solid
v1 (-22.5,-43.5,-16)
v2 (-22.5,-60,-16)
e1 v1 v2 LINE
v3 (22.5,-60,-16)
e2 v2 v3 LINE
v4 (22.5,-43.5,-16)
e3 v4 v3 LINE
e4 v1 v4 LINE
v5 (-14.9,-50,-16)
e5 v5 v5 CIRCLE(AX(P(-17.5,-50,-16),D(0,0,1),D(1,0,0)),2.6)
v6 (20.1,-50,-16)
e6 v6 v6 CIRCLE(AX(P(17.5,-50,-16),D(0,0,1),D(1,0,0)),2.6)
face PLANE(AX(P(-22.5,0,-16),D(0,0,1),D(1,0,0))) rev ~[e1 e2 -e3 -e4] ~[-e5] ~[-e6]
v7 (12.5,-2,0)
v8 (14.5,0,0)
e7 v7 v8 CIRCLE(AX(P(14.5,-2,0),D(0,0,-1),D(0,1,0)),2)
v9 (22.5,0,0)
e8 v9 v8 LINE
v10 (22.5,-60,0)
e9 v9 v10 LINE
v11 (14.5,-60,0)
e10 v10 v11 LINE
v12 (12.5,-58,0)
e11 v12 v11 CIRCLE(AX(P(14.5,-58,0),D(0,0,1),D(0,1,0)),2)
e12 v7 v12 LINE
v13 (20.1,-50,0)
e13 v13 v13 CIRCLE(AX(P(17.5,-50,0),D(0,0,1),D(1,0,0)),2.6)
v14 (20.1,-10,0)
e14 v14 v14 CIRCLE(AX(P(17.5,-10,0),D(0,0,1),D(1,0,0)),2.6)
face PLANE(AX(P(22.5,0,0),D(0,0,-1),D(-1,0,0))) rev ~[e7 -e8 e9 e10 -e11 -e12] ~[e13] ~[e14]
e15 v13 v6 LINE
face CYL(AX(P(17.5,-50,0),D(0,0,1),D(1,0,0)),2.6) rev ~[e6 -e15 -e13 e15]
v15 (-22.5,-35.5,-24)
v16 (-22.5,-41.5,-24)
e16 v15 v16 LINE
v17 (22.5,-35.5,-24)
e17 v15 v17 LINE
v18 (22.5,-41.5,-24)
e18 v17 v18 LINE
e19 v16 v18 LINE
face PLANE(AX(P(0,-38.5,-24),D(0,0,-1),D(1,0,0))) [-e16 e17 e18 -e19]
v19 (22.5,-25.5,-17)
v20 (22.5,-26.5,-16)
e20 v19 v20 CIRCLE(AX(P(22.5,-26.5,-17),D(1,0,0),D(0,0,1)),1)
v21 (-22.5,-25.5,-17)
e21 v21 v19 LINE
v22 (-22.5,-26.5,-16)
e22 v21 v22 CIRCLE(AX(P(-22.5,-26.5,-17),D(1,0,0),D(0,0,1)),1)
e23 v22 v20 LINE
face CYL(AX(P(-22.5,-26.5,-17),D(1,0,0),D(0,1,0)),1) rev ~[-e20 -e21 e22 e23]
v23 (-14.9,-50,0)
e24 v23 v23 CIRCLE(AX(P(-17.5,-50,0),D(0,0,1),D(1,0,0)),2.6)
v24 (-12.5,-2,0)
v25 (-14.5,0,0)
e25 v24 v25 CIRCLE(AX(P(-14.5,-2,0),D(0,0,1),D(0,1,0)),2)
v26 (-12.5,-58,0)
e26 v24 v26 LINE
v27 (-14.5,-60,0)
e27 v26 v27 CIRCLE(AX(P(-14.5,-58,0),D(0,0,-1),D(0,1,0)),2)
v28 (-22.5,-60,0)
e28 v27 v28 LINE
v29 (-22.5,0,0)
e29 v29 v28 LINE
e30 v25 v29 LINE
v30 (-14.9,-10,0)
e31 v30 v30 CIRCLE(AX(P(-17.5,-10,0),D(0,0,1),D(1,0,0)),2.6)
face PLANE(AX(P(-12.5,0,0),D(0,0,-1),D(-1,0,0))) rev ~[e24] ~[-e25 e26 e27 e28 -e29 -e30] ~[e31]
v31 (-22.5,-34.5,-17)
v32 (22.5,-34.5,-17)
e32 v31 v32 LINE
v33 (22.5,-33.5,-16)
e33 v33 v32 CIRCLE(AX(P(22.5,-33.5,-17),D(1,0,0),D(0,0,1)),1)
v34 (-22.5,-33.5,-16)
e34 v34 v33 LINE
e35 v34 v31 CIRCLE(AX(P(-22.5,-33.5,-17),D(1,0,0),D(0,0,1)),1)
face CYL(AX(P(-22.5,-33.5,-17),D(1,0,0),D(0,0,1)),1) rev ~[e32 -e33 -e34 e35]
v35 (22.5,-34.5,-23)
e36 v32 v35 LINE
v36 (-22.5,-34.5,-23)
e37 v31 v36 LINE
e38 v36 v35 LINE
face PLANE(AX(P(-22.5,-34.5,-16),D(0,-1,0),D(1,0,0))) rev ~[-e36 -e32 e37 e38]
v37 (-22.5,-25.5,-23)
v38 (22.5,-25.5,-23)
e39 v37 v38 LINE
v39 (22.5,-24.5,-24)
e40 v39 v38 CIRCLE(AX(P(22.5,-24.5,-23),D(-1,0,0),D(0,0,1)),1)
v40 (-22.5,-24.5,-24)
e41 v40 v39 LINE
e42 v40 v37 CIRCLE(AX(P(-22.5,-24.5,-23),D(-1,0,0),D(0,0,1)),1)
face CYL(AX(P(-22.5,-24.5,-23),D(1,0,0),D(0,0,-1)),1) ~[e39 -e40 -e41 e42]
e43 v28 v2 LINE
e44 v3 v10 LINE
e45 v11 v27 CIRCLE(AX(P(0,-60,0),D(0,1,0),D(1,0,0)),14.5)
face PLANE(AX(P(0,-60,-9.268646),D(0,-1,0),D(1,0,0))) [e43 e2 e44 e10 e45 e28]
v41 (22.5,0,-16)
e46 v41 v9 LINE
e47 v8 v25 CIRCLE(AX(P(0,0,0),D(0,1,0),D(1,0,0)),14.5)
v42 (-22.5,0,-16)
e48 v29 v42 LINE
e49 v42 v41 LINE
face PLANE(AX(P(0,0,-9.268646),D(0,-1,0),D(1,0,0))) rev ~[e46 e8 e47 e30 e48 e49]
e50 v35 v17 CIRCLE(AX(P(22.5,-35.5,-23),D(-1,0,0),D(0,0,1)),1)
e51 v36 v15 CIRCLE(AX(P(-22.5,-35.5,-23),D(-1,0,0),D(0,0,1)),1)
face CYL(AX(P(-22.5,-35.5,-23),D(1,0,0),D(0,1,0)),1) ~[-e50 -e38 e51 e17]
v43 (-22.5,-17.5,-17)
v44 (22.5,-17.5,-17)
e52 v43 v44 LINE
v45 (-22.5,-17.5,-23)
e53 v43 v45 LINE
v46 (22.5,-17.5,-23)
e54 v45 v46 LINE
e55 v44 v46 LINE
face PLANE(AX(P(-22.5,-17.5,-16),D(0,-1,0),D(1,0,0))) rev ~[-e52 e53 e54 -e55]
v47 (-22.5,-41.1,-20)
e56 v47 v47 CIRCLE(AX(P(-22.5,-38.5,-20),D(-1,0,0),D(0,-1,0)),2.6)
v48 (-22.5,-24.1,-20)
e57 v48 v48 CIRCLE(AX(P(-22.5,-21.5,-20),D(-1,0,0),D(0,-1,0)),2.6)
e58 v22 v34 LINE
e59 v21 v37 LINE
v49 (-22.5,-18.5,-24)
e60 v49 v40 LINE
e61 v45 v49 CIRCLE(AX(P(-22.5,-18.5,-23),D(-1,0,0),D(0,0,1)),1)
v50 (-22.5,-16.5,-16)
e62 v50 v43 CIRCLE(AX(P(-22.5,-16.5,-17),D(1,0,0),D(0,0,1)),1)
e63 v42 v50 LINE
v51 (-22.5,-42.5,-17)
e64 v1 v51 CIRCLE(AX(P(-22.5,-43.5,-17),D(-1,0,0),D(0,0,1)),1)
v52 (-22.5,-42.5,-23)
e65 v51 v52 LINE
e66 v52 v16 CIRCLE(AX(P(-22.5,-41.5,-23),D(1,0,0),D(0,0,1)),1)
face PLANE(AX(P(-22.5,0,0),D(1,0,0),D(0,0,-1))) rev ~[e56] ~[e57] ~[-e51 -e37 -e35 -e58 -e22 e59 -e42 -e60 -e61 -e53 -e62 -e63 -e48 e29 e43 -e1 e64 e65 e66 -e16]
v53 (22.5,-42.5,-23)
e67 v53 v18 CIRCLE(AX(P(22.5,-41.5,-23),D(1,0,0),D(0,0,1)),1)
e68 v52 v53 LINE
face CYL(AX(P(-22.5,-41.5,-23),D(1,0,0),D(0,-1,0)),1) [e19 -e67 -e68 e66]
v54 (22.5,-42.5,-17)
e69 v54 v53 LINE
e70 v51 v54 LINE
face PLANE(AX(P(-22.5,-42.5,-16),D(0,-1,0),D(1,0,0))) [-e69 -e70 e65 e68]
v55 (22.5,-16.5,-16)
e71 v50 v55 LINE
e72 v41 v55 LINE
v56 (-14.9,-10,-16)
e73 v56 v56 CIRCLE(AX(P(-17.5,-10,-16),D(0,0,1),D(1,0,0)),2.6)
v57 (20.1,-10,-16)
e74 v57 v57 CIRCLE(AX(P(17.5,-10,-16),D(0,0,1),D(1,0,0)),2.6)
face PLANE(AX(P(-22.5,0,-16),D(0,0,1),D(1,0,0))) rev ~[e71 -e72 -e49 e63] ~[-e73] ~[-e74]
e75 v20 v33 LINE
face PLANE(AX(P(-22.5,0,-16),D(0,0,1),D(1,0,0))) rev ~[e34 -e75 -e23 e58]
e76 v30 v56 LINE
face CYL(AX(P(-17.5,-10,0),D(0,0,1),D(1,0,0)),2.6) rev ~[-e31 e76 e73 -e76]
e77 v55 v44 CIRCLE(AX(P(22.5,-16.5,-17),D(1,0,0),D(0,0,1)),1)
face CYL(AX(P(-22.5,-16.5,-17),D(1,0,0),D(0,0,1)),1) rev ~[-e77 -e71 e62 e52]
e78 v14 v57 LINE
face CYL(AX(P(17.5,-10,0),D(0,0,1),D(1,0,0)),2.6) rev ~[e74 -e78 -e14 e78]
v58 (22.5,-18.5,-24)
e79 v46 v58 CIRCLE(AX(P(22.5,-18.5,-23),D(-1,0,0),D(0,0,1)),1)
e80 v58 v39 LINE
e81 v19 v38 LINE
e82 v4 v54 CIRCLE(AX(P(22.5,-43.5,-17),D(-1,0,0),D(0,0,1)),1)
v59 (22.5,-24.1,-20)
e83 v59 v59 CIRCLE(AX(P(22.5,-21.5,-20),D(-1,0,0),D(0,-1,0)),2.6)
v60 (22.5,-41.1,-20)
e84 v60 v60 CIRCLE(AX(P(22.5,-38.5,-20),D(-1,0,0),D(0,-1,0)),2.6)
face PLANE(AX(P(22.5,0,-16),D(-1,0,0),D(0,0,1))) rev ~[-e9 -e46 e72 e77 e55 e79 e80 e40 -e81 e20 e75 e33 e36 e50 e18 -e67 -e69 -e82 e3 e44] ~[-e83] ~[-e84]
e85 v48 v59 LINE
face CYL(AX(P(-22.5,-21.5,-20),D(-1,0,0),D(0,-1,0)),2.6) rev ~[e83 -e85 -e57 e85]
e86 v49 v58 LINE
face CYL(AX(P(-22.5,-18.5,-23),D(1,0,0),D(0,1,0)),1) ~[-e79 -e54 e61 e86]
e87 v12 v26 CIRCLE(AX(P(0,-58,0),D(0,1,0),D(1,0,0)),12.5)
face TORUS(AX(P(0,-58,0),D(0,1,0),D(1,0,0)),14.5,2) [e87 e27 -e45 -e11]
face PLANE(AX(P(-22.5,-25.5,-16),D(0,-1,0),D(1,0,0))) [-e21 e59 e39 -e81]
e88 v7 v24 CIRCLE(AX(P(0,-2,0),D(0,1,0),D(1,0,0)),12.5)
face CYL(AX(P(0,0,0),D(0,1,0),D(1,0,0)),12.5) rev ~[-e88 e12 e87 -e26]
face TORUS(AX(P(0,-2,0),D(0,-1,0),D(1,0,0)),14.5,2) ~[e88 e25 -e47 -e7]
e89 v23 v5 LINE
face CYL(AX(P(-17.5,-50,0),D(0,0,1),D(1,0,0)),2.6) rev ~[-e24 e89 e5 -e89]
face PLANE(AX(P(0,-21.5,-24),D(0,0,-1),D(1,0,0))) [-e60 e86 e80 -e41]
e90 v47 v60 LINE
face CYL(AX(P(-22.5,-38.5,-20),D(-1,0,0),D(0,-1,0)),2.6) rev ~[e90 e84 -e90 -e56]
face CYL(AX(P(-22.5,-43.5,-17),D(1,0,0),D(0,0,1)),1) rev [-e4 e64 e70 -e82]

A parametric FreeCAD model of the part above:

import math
import FreeCAD as App
import Part
import Sketcher

V = App.Vector
Q = App.Units.Quantity


def edges_at(feature, points):
    """Names of the edges that pass closest to the given points."""
    edges = feature.Shape.Edges
    near = lambda p: min(range(len(edges)), key=lambda i: edges[i].distToShape(Part.Vertex(*p))[0])
    return sorted({f"Edge{near(p) + 1}" for p in points})


def add_polygon(sketch, points):
    """Adds a closed chain of lines whose ends are joined by coincident constraints."""
    first, n = sketch.GeometryCount, len(points)
    for a, b in zip(points, points[1:] + points[:1]):
        sketch.addGeometry(Part.LineSegment(App.Vector(*a, 0), App.Vector(*b, 0)), False)
    for i in range(n):
        sketch.addConstraint(Sketcher.Constraint("Coincident", first + i, 2, first + (i + 1) % n, 1))

doc = App.newDocument("Part")
body = doc.addObject("PartDesign::Body", "Body")

# Sketch on XZ plane
sketch1 = body.newObject("Sketcher::SketchObject", "Sketch")
sketch1.AttachmentSupport = (doc.getObject("XZ_Plane"), [""])
sketch1.MapMode = "FlatFace"
sketch1.addGeometry([
    Part.ArcOfCircle(Part.Circle(V(0, 0, 0), V(0, 0, 1), 12), math.radians(180), math.radians(360)),  # 0
    Part.LineSegment(V(-12, 0, 0), V(-22, 0, 0)),  # 1
    Part.LineSegment(V(-22, 0, 0), V(-22, -16, 0)),  # 2
    Part.LineSegment(V(-22, -16, 0), V(22, -16, 0)),  # 3
    Part.LineSegment(V(22, -16, 0), V(22, 0, 0)),  # 4
    Part.LineSegment(V(22, 0, 0), V(12, 0, 0)),  # 5
], False)
sketch1.addConstraint([
    Sketcher.Constraint("Coincident", 0, 1, 1, 1),
    Sketcher.Constraint("Coincident", 1, 2, 2, 1),
    Sketcher.Constraint("Coincident", 2, 2, 3, 1),
    Sketcher.Constraint("Coincident", 3, 2, 4, 1),
    Sketcher.Constraint("Coincident", 4, 2, 5, 1),
    Sketcher.Constraint("Coincident", 5, 2, 0, 2),
    Sketcher.Constraint("Horizontal", 1),
    Sketcher.Constraint("Vertical", 2),
    Sketcher.Constraint("Horizontal", 3),
    Sketcher.Constraint("Vertical", 4),
    Sketcher.Constraint("Horizontal", 5),
    Sketcher.Constraint("Coincident", 0, 3, -1, 1),
    Sketcher.Constraint("Symmetric", 1, 2, 4, 2, -1, 1),
    Sketcher.Constraint("PointOnObject", 0, 1, -1),
    Sketcher.Constraint("Radius", 0, Q("12.5 mm")),
    Sketcher.Constraint("DistanceX", 1, 2, 1, 1, Q("10 mm")),
    Sketcher.Constraint("DistanceY", 2, 2, 2, 1, Q("16 mm")),
])
pad1 = body.newObject("PartDesign::Pad", "Pad")
pad1.Profile = sketch1
pad1.Length = 60

# Sketch on XY plane
sketch2 = body.newObject("Sketcher::SketchObject", "Sketch001")
sketch2.AttachmentSupport = (doc.getObject("XY_Plane"), [""])
sketch2.MapMode = "FlatFace"
sketch2.addGeometry([
    Part.Circle(V(-17.5, -50, 0), V(0, 0, 1), 2.6),
    Part.Circle(V(-17.5, -10, 0), V(0, 0, 1), 2.6),
    Part.Circle(V(17.5, -50, 0), V(0, 0, 1), 2.6),
    Part.Circle(V(17.5, -10, 0), V(0, 0, 1), 2.6),
], False)
sketch2.addConstraint([
    Sketcher.Constraint("Equal", 0, 1),
    Sketcher.Constraint("Equal", 1, 2),
    Sketcher.Constraint("Equal", 2, 3),
    Sketcher.Constraint("Symmetric", 0, 3, 2, 3, -2),
    Sketcher.Constraint("Symmetric", 1, 3, 3, 3, -2),
    Sketcher.Constraint("Vertical", 0, 3, 1, 3),
    Sketcher.Constraint("Diameter", 0, Q("5.2 mm")),
    Sketcher.Constraint("DistanceY", 0, 3, -1, 1, Q("50 mm")),
    Sketcher.Constraint("DistanceY", 1, 3, -1, 1, Q("10 mm")),
    Sketcher.Constraint("DistanceX", 0, 3, 2, 3, Q("35 mm")),
])
pocket1 = body.newObject("PartDesign::Pocket", "Pocket")
pocket1.Profile = sketch2
pocket1.Length = 25
doc.recompute()

fillet = body.newObject("PartDesign::Fillet", "Fillet")
fillet.Base = (pocket1, edges_at(pocket1, [(0, -60, -12.5), (0, 0, -12.5)]))
fillet.Radius = 2

# Sketch on XY plane
sketch3 = body.newObject("Sketcher::SketchObject", "Sketch002")
sketch3.AttachmentSupport = (doc.getObject("XY_Plane"), [""])
sketch3.MapMode = "FlatFace"
sketch3.AttachmentOffset = App.Placement(V(0, 0, -16), App.Rotation())
add_polygon(sketch3, [(-22, -26), (-22, -18), (22, -18), (22, -26)])  # lines 0-3
add_polygon(sketch3, [(-22, -42), (-22, -34), (22, -34), (22, -42)])  # lines 4-7
sketch3.addConstraint([
    Sketcher.Constraint("Vertical", 0),
    Sketcher.Constraint("Horizontal", 1),
    Sketcher.Constraint("Vertical", 2),
    Sketcher.Constraint("Horizontal", 3),
    Sketcher.Constraint("Vertical", 4),
    Sketcher.Constraint("Horizontal", 5),
    Sketcher.Constraint("Vertical", 6),
    Sketcher.Constraint("Horizontal", 7),
    Sketcher.Constraint("Vertical", 3, 2, 4, 2),
    Sketcher.Constraint("Vertical", 2, 2, 5, 2),
    Sketcher.Constraint("Equal", 2, 4),
    Sketcher.Constraint("DistanceX", 1, 1, 1, 2, Q("45 mm")),
    Sketcher.Constraint("DistanceY", 0, 1, 0, 2, Q("8 mm")),
    Sketcher.Constraint("DistanceY", 4, 2, 3, 2, Q("9 mm")),
    Sketcher.Constraint("DistanceX", 0, 2, -1, 1, Q("22.5 mm")),
    Sketcher.Constraint("DistanceY", 0, 2, -1, 1, Q("17.5 mm")),
])
pad2 = body.newObject("PartDesign::Pad", "Pad001")
pad2.Profile = sketch3
pad2.Length = 8
pad2.Reversed = True

# Sketch on YZ plane
sketch4 = body.newObject("Sketcher::SketchObject", "Sketch003")
sketch4.AttachmentSupport = (doc.getObject("YZ_Plane"), [""])
sketch4.MapMode = "FlatFace"
sketch4.AttachmentOffset = App.Placement(V(0, 0, -22.5), App.Rotation())
sketch4.addGeometry([
    Part.Circle(V(-38.5, -20, 0), V(0, 0, 1), 2.6),
    Part.Circle(V(-21.5, -20, 0), V(0, 0, 1), 2.6),
], False)
sketch4.addConstraint([
    Sketcher.Constraint("Equal", 0, 1),
    Sketcher.Constraint("Horizontal", 0, 3, 1, 3),
    Sketcher.Constraint("Diameter", 0, Q("5.2 mm")),
    Sketcher.Constraint("DistanceY", 0, 3, -1, 1, Q("20 mm")),
    Sketcher.Constraint("DistanceX", 0, 3, 1, 3, Q("17 mm")),
    Sketcher.Constraint("DistanceX", 0, 3, -1, 1, Q("38.5 mm")),
])
pocket2 = body.newObject("PartDesign::Pocket", "Pocket001")
pocket2.Profile = sketch4
pocket2.Length = 50
pocket2.Reversed = True
doc.recompute()

fillet2 = body.newObject("PartDesign::Fillet", "Fillet001")
fillet2.Base = (pocket2, edges_at(pocket2, [
    (0, -17.5, -24),
    (0, -17.5, -16),
    (0, -25.5, -24),
    (0, -25.5, -16),
    (0, -34.5, -16),
    (0, -34.5, -24),
    (0, -42.5, -24),
    (0, -42.5, -16),
]))
fillet2.Radius = 1

doc.recompute()
